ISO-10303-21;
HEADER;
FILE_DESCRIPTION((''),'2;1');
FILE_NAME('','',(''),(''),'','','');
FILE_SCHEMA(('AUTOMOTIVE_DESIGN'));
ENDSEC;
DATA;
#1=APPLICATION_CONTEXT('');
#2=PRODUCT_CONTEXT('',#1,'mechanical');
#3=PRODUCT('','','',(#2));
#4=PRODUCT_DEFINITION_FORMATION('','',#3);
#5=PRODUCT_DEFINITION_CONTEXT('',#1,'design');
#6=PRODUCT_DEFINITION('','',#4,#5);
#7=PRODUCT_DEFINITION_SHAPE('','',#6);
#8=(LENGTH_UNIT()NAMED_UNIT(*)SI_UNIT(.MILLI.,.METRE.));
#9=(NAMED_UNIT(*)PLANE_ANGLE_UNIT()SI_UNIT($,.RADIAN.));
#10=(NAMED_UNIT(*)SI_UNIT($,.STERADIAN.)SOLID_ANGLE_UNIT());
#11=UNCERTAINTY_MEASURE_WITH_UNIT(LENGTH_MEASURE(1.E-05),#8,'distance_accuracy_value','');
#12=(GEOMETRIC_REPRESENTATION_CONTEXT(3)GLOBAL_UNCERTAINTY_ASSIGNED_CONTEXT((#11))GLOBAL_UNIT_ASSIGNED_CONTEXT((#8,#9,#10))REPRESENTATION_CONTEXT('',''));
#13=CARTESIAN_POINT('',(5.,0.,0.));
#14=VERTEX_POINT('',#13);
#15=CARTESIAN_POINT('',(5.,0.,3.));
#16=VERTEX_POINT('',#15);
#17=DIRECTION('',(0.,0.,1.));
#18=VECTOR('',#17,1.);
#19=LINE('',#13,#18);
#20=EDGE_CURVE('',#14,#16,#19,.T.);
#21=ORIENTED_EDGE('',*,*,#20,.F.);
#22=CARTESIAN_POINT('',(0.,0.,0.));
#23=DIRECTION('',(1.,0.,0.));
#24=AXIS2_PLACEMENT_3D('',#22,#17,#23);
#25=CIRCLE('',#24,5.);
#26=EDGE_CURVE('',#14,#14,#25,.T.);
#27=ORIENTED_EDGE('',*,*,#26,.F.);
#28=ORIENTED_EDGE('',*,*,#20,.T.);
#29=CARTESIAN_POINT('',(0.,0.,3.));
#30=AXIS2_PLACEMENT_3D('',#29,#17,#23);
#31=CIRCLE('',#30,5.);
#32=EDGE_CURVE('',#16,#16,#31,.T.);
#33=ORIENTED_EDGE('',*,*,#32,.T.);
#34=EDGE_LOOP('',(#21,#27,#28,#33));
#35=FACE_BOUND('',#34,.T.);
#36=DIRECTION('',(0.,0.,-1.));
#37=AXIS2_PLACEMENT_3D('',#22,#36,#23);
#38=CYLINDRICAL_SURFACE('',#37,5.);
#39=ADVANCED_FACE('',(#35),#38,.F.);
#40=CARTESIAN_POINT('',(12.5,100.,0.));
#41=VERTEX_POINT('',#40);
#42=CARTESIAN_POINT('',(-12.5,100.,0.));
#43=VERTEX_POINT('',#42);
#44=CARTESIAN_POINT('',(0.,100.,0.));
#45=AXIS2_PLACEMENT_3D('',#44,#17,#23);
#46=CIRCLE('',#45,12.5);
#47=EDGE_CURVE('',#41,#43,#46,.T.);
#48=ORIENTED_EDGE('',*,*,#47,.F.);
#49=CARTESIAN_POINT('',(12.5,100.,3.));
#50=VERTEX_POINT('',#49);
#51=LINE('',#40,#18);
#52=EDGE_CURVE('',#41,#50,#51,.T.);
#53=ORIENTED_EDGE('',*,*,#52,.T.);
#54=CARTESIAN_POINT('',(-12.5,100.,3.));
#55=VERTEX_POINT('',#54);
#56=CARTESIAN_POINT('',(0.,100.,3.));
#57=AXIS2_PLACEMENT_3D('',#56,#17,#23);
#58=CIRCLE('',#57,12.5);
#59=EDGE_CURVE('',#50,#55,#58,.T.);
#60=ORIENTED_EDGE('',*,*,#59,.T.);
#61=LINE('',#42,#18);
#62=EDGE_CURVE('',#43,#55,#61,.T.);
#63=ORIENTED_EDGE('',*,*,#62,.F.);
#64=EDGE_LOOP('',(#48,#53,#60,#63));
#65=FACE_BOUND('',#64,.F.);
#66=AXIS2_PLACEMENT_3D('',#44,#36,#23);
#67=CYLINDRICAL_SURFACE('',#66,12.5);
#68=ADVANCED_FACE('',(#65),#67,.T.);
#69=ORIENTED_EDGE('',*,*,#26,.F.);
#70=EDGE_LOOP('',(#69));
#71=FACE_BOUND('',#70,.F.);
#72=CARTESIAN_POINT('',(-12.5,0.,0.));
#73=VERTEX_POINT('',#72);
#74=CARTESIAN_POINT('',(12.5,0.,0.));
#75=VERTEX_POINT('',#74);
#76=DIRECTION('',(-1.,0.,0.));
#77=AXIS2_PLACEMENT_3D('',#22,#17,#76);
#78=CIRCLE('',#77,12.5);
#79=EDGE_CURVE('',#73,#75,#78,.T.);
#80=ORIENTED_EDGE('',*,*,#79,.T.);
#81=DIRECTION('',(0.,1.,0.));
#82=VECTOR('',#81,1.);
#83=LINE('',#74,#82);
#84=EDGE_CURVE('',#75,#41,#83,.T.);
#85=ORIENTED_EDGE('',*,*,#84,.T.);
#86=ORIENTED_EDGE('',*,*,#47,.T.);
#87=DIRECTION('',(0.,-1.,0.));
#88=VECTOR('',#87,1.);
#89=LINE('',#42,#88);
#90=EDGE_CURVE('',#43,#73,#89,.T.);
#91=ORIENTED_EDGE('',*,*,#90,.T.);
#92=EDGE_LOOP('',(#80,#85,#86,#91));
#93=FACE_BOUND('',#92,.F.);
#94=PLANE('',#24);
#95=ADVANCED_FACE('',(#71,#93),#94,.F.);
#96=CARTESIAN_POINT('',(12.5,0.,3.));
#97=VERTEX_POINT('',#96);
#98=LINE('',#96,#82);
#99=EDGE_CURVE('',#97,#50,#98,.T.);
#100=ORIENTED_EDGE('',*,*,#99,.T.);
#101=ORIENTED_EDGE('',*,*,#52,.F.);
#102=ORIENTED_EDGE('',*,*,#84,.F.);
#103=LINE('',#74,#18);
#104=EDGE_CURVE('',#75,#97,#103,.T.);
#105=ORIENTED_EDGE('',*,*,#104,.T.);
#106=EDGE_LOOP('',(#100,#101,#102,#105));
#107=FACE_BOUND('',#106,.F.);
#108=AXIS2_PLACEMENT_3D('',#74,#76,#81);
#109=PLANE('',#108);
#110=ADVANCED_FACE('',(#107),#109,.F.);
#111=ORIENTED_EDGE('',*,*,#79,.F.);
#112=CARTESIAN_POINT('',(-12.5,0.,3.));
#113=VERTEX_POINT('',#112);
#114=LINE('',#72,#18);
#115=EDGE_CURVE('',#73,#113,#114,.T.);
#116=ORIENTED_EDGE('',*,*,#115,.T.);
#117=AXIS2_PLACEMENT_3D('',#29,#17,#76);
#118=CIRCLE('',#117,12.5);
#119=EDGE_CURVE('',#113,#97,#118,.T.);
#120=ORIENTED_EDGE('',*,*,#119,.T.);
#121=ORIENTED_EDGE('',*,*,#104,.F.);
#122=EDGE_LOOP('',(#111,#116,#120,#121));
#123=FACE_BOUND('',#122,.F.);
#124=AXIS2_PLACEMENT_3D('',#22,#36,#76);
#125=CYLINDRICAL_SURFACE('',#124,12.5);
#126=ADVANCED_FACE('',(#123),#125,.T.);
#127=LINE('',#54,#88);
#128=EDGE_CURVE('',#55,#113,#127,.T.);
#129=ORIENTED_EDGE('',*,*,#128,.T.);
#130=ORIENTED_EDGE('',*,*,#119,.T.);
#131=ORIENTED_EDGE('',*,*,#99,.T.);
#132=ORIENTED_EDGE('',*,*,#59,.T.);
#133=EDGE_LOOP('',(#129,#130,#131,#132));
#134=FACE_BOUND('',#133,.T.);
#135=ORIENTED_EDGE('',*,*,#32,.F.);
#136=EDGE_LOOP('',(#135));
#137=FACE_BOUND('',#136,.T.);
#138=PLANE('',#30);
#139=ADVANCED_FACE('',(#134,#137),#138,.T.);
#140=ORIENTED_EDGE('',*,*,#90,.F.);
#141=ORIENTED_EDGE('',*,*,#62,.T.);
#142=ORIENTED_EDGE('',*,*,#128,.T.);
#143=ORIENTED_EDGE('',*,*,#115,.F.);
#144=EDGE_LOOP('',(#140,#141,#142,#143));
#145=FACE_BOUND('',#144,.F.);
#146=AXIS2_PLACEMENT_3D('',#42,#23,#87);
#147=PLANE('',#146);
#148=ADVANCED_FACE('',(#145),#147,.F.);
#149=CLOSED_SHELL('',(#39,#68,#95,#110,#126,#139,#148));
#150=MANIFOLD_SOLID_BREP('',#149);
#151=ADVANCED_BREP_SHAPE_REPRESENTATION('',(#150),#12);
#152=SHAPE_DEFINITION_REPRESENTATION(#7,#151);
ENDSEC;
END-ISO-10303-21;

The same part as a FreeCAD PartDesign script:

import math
import FreeCAD as App
import Part
import Sketcher

doc = App.newDocument("Part")
body = doc.addObject("PartDesign::Body", "Body")

sketch1 = body.newObject("Sketcher::SketchObject", "Sketch")
sketch1.AttachmentSupport = (doc.getObject("XY_Plane"), [""])
sketch1.MapMode = "FlatFace"
sketch1.addGeometry([
    Part.ArcOfCircle(Part.Circle(App.Vector(0, 0, 0), App.Vector(0, 0, 1), 12), math.radians(180), math.radians(360)),
    Part.LineSegment(App.Vector(12, 0, 0), App.Vector(12, 100, 0)),
    Part.ArcOfCircle(Part.Circle(App.Vector(0, 100, 0), App.Vector(0, 0, 1), 12), math.radians(0), math.radians(180)),
    Part.LineSegment(App.Vector(-12, 100, 0), App.Vector(-12, 0, 0)),
    Part.Circle(App.Vector(0, 0, 0), App.Vector(0, 0, 1), 5),
], False)
sketch1.addConstraint([
    Sketcher.Constraint("Tangent", 0, 2, 1, 1),
    Sketcher.Constraint("Tangent", 1, 2, 2, 1),
    Sketcher.Constraint("Tangent", 2, 2, 3, 1),
    Sketcher.Constraint("Tangent", 3, 2, 0, 1),
    Sketcher.Constraint("Vertical", 1),
    Sketcher.Constraint("Vertical", 3),
    Sketcher.Constraint("Coincident", 0, 3, -1, 1),
    Sketcher.Constraint("Coincident", 4, 3, -1, 1),
    Sketcher.Constraint("Diameter", 4, 10.0),
    Sketcher.Constraint("Radius", 0, 12.5),
    Sketcher.Constraint("DistanceY", 1, 1, 1, 2, 100.0),
])
pad1 = body.newObject("PartDesign::Pad", "Pad")
pad1.Profile = sketch1
pad1.Length = 3

doc.recompute()
